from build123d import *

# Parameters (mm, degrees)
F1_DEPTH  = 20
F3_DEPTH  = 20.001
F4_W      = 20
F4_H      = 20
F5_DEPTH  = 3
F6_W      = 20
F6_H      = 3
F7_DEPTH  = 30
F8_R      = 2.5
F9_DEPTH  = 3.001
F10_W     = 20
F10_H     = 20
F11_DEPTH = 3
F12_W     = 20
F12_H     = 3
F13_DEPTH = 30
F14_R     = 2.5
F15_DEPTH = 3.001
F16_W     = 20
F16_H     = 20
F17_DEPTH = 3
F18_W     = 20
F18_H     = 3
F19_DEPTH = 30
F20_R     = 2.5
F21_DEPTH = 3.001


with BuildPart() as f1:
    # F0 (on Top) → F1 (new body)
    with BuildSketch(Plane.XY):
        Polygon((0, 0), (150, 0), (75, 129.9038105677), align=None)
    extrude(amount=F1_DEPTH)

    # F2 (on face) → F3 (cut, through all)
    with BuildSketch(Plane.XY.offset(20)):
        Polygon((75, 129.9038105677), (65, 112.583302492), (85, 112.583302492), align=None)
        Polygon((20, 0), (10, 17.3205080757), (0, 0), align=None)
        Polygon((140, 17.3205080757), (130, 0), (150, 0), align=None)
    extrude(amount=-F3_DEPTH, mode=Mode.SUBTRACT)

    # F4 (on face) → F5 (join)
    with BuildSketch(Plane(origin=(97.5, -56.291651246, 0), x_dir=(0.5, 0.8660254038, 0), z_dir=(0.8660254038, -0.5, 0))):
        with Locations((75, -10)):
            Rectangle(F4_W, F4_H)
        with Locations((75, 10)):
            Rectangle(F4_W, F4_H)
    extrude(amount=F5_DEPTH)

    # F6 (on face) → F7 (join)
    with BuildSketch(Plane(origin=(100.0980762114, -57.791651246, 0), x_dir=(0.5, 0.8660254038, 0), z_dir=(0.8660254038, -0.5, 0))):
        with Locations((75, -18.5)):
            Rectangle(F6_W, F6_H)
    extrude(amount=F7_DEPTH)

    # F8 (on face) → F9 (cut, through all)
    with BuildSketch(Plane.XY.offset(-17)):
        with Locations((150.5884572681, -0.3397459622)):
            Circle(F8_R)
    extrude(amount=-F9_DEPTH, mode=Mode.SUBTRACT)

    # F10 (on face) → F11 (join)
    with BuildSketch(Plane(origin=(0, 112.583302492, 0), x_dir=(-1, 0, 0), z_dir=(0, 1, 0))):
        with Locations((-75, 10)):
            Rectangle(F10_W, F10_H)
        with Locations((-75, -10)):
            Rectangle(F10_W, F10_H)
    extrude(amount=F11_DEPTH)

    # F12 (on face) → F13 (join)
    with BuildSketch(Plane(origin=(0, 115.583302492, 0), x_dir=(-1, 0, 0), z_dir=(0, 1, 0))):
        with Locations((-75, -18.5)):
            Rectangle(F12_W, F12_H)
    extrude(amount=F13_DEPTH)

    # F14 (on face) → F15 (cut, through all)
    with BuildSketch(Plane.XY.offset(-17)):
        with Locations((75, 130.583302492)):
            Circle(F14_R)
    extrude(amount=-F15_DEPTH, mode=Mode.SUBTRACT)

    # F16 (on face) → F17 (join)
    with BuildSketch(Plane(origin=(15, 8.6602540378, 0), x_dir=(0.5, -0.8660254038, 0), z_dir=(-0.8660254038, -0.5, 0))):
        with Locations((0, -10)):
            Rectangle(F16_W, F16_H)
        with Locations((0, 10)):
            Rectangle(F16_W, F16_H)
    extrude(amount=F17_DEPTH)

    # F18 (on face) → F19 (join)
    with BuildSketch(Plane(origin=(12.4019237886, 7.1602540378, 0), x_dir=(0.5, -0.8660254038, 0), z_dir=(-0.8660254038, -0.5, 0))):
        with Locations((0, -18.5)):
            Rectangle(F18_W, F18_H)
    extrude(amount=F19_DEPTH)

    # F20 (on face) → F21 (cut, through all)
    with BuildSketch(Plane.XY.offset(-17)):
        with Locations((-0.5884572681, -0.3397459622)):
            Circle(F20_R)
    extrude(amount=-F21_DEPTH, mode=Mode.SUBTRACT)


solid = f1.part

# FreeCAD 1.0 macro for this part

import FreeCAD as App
import Part
import Sketcher

V = App.Vector
Q = App.Units.Quantity

doc = App.newDocument("Part")
body = doc.addObject("PartDesign::Body", "Body")

# Sketch on XY plane
sketch1 = body.newObject("Sketcher::SketchObject", "Sketch")
sketch1.AttachmentSupport = (doc.getObject("XY_Plane"), [""])
sketch1.MapMode = "FlatFace"
sketch1.addGeometry(Part.LineSegment(V(0, 0, 0), V(150, 0, 0)), False)
sketch1.addGeometry(Part.LineSegment(V(150, 0, 0), V(75, 129.903811, 0)), False)
sketch1.addGeometry(Part.LineSegment(V(75, 129.903811, 0), V(0, 0, 0)), False)
sketch1.addConstraint(Sketcher.Constraint("Coincident", 0, 2, 1, 1))
sketch1.addConstraint(Sketcher.Constraint("Coincident", 1, 2, 2, 1))
sketch1.addConstraint(Sketcher.Constraint("Coincident", 2, 2, 0, 1))
sketch1.addConstraint(Sketcher.Constraint("Horizontal", 0))
sketch1.addConstraint(Sketcher.Constraint("Coincident", 2, 2, -1, 1))
sketch1.addConstraint(Sketcher.Constraint("Equal", 1, 2))
sketch1.addConstraint(Sketcher.Constraint("DistanceX", 0, 1, 0, 2, 150.0))
sketch1.addConstraint(Sketcher.Constraint("Angle", 1, Q("120 deg")))
pad1 = body.newObject("PartDesign::Pad", "Pad")
pad1.Profile = sketch1
pad1.Length = 20

# Sketch on XY plane
sketch2 = body.newObject("Sketcher::SketchObject", "Sketch001")
sketch2.AttachmentSupport = (doc.getObject("XY_Plane"), [""])
sketch2.MapMode = "FlatFace"
sketch2.AttachmentOffset = App.Placement(V(0, 0, 20), App.Rotation())
sketch2.addGeometry(Part.LineSegment(V(75, 129.903811, 0), V(65, 112.583302, 0)), False)
sketch2.addGeometry(Part.LineSegment(V(65, 112.583302, 0), V(85, 112.583302, 0)), False)
sketch2.addGeometry(Part.LineSegment(V(85, 112.583302, 0), V(75, 129.903811, 0)), False)
sketch2.addGeometry(Part.LineSegment(V(20, 0, 0), V(10, 17.320508, 0)), False)
sketch2.addGeometry(Part.LineSegment(V(10, 17.320508, 0), V(0, 0, 0)), False)
sketch2.addGeometry(Part.LineSegment(V(0, 0, 0), V(20, 0, 0)), False)
sketch2.addGeometry(Part.LineSegment(V(140, 17.320508, 0), V(130, 0, 0)), False)
sketch2.addGeometry(Part.LineSegment(V(130, 0, 0), V(150, 0, 0)), False)
sketch2.addGeometry(Part.LineSegment(V(150, 0, 0), V(140, 17.320508, 0)), False)
sketch2.addConstraint(Sketcher.Constraint("Coincident", 0, 2, 1, 1))
sketch2.addConstraint(Sketcher.Constraint("Coincident", 1, 2, 2, 1))
sketch2.addConstraint(Sketcher.Constraint("Coincident", 2, 2, 0, 1))
sketch2.addConstraint(Sketcher.Constraint("Coincident", 3, 2, 4, 1))
sketch2.addConstraint(Sketcher.Constraint("Coincident", 4, 2, 5, 1))
sketch2.addConstraint(Sketcher.Constraint("Coincident", 5, 2, 3, 1))
sketch2.addConstraint(Sketcher.Constraint("Coincident", 6, 2, 7, 1))
sketch2.addConstraint(Sketcher.Constraint("Coincident", 7, 2, 8, 1))
sketch2.addConstraint(Sketcher.Constraint("Coincident", 8, 2, 6, 1))
sketch2.addConstraint(Sketcher.Constraint("Horizontal", 1))
sketch2.addConstraint(Sketcher.Constraint("Horizontal", 5))
sketch2.addConstraint(Sketcher.Constraint("Horizontal", 7))
sketch2.addConstraint(Sketcher.Constraint("Coincident", 4, 2, -1, 1))
sketch2.addConstraint(Sketcher.Constraint("PointOnObject", 6, 2, -1))
sketch2.addConstraint(Sketcher.Constraint("Parallel", 2, 3))
sketch2.addConstraint(Sketcher.Constraint("Parallel", 0, 4))
sketch2.addConstraint(Sketcher.Constraint("Parallel", 4, 6))
sketch2.addConstraint(Sketcher.Constraint("Parallel", 3, 8))
sketch2.addConstraint(Sketcher.Constraint("Horizontal", 3, 2, 8, 2))
sketch2.addConstraint(Sketcher.Constraint("Equal", 1, 5))
sketch2.addConstraint(Sketcher.Constraint("Equal", 0, 2))
sketch2.addConstraint(Sketcher.Constraint("DistanceX", 1, 1, 1, 2, 20.0))
sketch2.addConstraint(Sketcher.Constraint("Angle", 0, Q("-120 deg")))
sketch2.addConstraint(Sketcher.Constraint("DistanceX", -1, 1, 0, 2, 65.0))
sketch2.addConstraint(Sketcher.Constraint("DistanceX", -1, 1, 6, 2, 130.0))
sketch2.addConstraint(Sketcher.Constraint("DistanceY", -1, 1, 2, 2, 129.903811))
pocket1 = body.newObject("PartDesign::Pocket", "Pocket")
pocket1.Profile = sketch2
pocket1.Type = "ThroughAll"

# Sketch on an angled plane
sketch3 = body.newObject("Sketcher::SketchObject", "Sketch002")
sketch3.Placement = App.Placement(V(97.5, -56.291651, 0), App.Rotation(V(0.5, 0.866025404, 0), V(0, 0, 1), V(0.866025404, -0.5, 0), "ZXY"))
sketch3.addGeometry(Part.LineSegment(V(65, -20, 0), V(85, -20, 0)), False)
sketch3.addGeometry(Part.LineSegment(V(85, -20, 0), V(85, 20, 0)), False)
sketch3.addGeometry(Part.LineSegment(V(85, 20, 0), V(65, 20, 0)), False)
sketch3.addGeometry(Part.LineSegment(V(65, 20, 0), V(65, -20, 0)), False)
sketch3.addConstraint(Sketcher.Constraint("Coincident", 0, 2, 1, 1))
sketch3.addConstraint(Sketcher.Constraint("Coincident", 1, 2, 2, 1))
sketch3.addConstraint(Sketcher.Constraint("Coincident", 2, 2, 3, 1))
sketch3.addConstraint(Sketcher.Constraint("Coincident", 3, 2, 0, 1))
sketch3.addConstraint(Sketcher.Constraint("Horizontal", 0))
sketch3.addConstraint(Sketcher.Constraint("Vertical", 1))
sketch3.addConstraint(Sketcher.Constraint("Horizontal", 2))
sketch3.addConstraint(Sketcher.Constraint("Vertical", 3))
sketch3.addConstraint(Sketcher.Constraint("DistanceX", 0, 1, 0, 2, 20.0))
sketch3.addConstraint(Sketcher.Constraint("DistanceY", 1, 1, 1, 2, 40.0))
sketch3.addConstraint(Sketcher.Constraint("DistanceX", -1, 1, 0, 2, 85.0))
sketch3.addConstraint(Sketcher.Constraint("DistanceY", 0, 2, -1, 1, 20.0))
pad2 = body.newObject("PartDesign::Pad", "Pad001")
pad2.Profile = sketch3
pad2.Length = 3

# Sketch on an angled plane
sketch4 = body.newObject("Sketcher::SketchObject", "Sketch003")
sketch4.Placement = App.Placement(V(100.098076, -57.791651, 0), App.Rotation(V(0.5, 0.866025404, 0), V(0, 0, 1), V(0.866025404, -0.5, 0), "ZXY"))
sketch4.addGeometry(Part.LineSegment(V(65, -17, 0), V(65, -20, 0)), False)
sketch4.addGeometry(Part.LineSegment(V(65, -20, 0), V(85, -20, 0)), False)
sketch4.addGeometry(Part.LineSegment(V(85, -20, 0), V(85, -17, 0)), False)
sketch4.addGeometry(Part.LineSegment(V(85, -17, 0), V(65, -17, 0)), False)
sketch4.addConstraint(Sketcher.Constraint("Coincident", 0, 2, 1, 1))
sketch4.addConstraint(Sketcher.Constraint("Coincident", 1, 2, 2, 1))
sketch4.addConstraint(Sketcher.Constraint("Coincident", 2, 2, 3, 1))
sketch4.addConstraint(Sketcher.Constraint("Coincident", 3, 2, 0, 1))
sketch4.addConstraint(Sketcher.Constraint("Vertical", 0))
sketch4.addConstraint(Sketcher.Constraint("Horizontal", 1))
sketch4.addConstraint(Sketcher.Constraint("Vertical", 2))
sketch4.addConstraint(Sketcher.Constraint("Horizontal", 3))
sketch4.addConstraint(Sketcher.Constraint("DistanceX", 1, 1, 1, 2, 20.0))
sketch4.addConstraint(Sketcher.Constraint("DistanceY", 0, 2, 0, 1, 3.0))
sketch4.addConstraint(Sketcher.Constraint("DistanceX", -1, 1, 0, 2, 65.0))
sketch4.addConstraint(Sketcher.Constraint("DistanceY", 0, 2, -1, 1, 20.0))
pad3 = body.newObject("PartDesign::Pad", "Pad002")
pad3.Profile = sketch4
pad3.Length = 30

# Sketch on XY plane
sketch5 = body.newObject("Sketcher::SketchObject", "Sketch004")
sketch5.AttachmentSupport = (doc.getObject("XY_Plane"), [""])
sketch5.MapMode = "FlatFace"
sketch5.AttachmentOffset = App.Placement(V(0, 0, -17), App.Rotation())
sketch5.addGeometry(Part.Circle(V(150.588457, -0.339746, 0), V(0, 0, 1), 2.5), False)
sketch5.addConstraint(Sketcher.Constraint("Diameter", 0, 5.0))
sketch5.addConstraint(Sketcher.Constraint("DistanceX", -1, 1, 0, 3, 150.588457))
sketch5.addConstraint(Sketcher.Constraint("DistanceY", 0, 3, -1, 1, 0.339746))
pocket2 = body.newObject("PartDesign::Pocket", "Pocket001")
pocket2.Profile = sketch5
pocket2.Type = "ThroughAll"

# Sketch on XZ plane
sketch6 = body.newObject("Sketcher::SketchObject", "Sketch005")
sketch6.AttachmentSupport = (doc.getObject("XZ_Plane"), [""])
sketch6.MapMode = "FlatFace"
sketch6.AttachmentOffset = App.Placement(V(0, 0, -112.583302), App.Rotation())
sketch6.addGeometry(Part.LineSegment(V(85, 20, 0), V(85, -20, 0)), False)
sketch6.addGeometry(Part.LineSegment(V(85, -20, 0), V(65, -20, 0)), False)
sketch6.addGeometry(Part.LineSegment(V(65, -20, 0), V(65, 20, 0)), False)
sketch6.addGeometry(Part.LineSegment(V(65, 20, 0), V(85, 20, 0)), False)
sketch6.addConstraint(Sketcher.Constraint("Coincident", 0, 2, 1, 1))
sketch6.addConstraint(Sketcher.Constraint("Coincident", 1, 2, 2, 1))
sketch6.addConstraint(Sketcher.Constraint("Coincident", 2, 2, 3, 1))
sketch6.addConstraint(Sketcher.Constraint("Coincident", 3, 2, 0, 1))
sketch6.addConstraint(Sketcher.Constraint("Vertical", 0))
sketch6.addConstraint(Sketcher.Constraint("Horizontal", 1))
sketch6.addConstraint(Sketcher.Constraint("Vertical", 2))
sketch6.addConstraint(Sketcher.Constraint("Horizontal", 3))
sketch6.addConstraint(Sketcher.Constraint("DistanceX", 1, 2, 1, 1, 20.0))
sketch6.addConstraint(Sketcher.Constraint("DistanceY", 0, 2, 0, 1, 40.0))
sketch6.addConstraint(Sketcher.Constraint("DistanceX", -1, 1, 0, 2, 85.0))
sketch6.addConstraint(Sketcher.Constraint("DistanceY", 0, 2, -1, 1, 20.0))
pad4 = body.newObject("PartDesign::Pad", "Pad003")
pad4.Profile = sketch6
pad4.Length = 3
pad4.Reversed = True

# Sketch on XZ plane
sketch7 = body.newObject("Sketcher::SketchObject", "Sketch006")
sketch7.AttachmentSupport = (doc.getObject("XZ_Plane"), [""])
sketch7.MapMode = "FlatFace"
sketch7.AttachmentOffset = App.Placement(V(0, 0, -115.583302), App.Rotation())
sketch7.addGeometry(Part.LineSegment(V(85, -17, 0), V(85, -20, 0)), False)
sketch7.addGeometry(Part.LineSegment(V(85, -20, 0), V(65, -20, 0)), False)
sketch7.addGeometry(Part.LineSegment(V(65, -20, 0), V(65, -17, 0)), False)
sketch7.addGeometry(Part.LineSegment(V(65, -17, 0), V(85, -17, 0)), False)
sketch7.addConstraint(Sketcher.Constraint("Coincident", 0, 2, 1, 1))
sketch7.addConstraint(Sketcher.Constraint("Coincident", 1, 2, 2, 1))
sketch7.addConstraint(Sketcher.Constraint("Coincident", 2, 2, 3, 1))
sketch7.addConstraint(Sketcher.Constraint("Coincident", 3, 2, 0, 1))
sketch7.addConstraint(Sketcher.Constraint("Vertical", 0))
sketch7.addConstraint(Sketcher.Constraint("Horizontal", 1))
sketch7.addConstraint(Sketcher.Constraint("Vertical", 2))
sketch7.addConstraint(Sketcher.Constraint("Horizontal", 3))
sketch7.addConstraint(Sketcher.Constraint("DistanceX", 1, 2, 1, 1, 20.0))
sketch7.addConstraint(Sketcher.Constraint("DistanceY", 0, 2, 0, 1, 3.0))
sketch7.addConstraint(Sketcher.Constraint("DistanceX", -1, 1, 0, 2, 85.0))
sketch7.addConstraint(Sketcher.Constraint("DistanceY", 0, 2, -1, 1, 20.0))
pad5 = body.newObject("PartDesign::Pad", "Pad004")
pad5.Profile = sketch7
pad5.Length = 30
pad5.Reversed = True

# Sketch on XY plane
sketch8 = body.newObject("Sketcher::SketchObject", "Sketch007")
sketch8.AttachmentSupport = (doc.getObject("XY_Plane"), [""])
sketch8.MapMode = "FlatFace"
sketch8.AttachmentOffset = App.Placement(V(0, 0, -17), App.Rotation())
sketch8.addGeometry(Part.Circle(V(75, 130.583302, 0), V(0, 0, 1), 2.5), False)
sketch8.addConstraint(Sketcher.Constraint("Diameter", 0, 5.0))
sketch8.addConstraint(Sketcher.Constraint("DistanceX", -1, 1, 0, 3, 75.0))
sketch8.addConstraint(Sketcher.Constraint("DistanceY", -1, 1, 0, 3, 130.583302))
pocket3 = body.newObject("PartDesign::Pocket", "Pocket002")
pocket3.Profile = sketch8
pocket3.Type = "ThroughAll"

# Sketch on an angled plane
sketch9 = body.newObject("Sketcher::SketchObject", "Sketch008")
sketch9.Placement = App.Placement(V(15, 8.660254, 0), App.Rotation(V(0.5, -0.866025404, 0), V(0, 0, 1), V(-0.866025404, -0.5, 0), "ZXY"))
sketch9.addGeometry(Part.LineSegment(V(-10, -20, 0), V(10, -20, 0)), False)
sketch9.addGeometry(Part.LineSegment(V(10, -20, 0), V(10, 20, 0)), False)
sketch9.addGeometry(Part.LineSegment(V(10, 20, 0), V(-10, 20, 0)), False)
sketch9.addGeometry(Part.LineSegment(V(-10, 20, 0), V(-10, -20, 0)), False)
sketch9.addConstraint(Sketcher.Constraint("Coincident", 0, 2, 1, 1))
sketch9.addConstraint(Sketcher.Constraint("Coincident", 1, 2, 2, 1))
sketch9.addConstraint(Sketcher.Constraint("Coincident", 2, 2, 3, 1))
sketch9.addConstraint(Sketcher.Constraint("Coincident", 3, 2, 0, 1))
sketch9.addConstraint(Sketcher.Constraint("Horizontal", 0))
sketch9.addConstraint(Sketcher.Constraint("Vertical", 1))
sketch9.addConstraint(Sketcher.Constraint("Horizontal", 2))
sketch9.addConstraint(Sketcher.Constraint("Vertical", 3))
sketch9.addConstraint(Sketcher.Constraint("Symmetric", 0, 2, 2, 2, -1, 1))
sketch9.addConstraint(Sketcher.Constraint("DistanceX", 0, 1, 0, 2, 20.0))
sketch9.addConstraint(Sketcher.Constraint("DistanceY", 1, 1, 1, 2, 40.0))
pad6 = body.newObject("PartDesign::Pad", "Pad005")
pad6.Profile = sketch9
pad6.Length = 3

# Sketch on an angled plane
sketch10 = body.newObject("Sketcher::SketchObject", "Sketch009")
sketch10.Placement = App.Placement(V(12.401924, 7.160254, 0), App.Rotation(V(0.5, -0.866025404, 0), V(0, 0, 1), V(-0.866025404, -0.5, 0), "ZXY"))
sketch10.addGeometry(Part.LineSegment(V(-10, -17, 0), V(-10, -20, 0)), False)
sketch10.addGeometry(Part.LineSegment(V(-10, -20, 0), V(10, -20, 0)), False)
sketch10.addGeometry(Part.LineSegment(V(10, -20, 0), V(10, -17, 0)), False)
sketch10.addGeometry(Part.LineSegment(V(10, -17, 0), V(-10, -17, 0)), False)
sketch10.addConstraint(Sketcher.Constraint("Coincident", 0, 2, 1, 1))
sketch10.addConstraint(Sketcher.Constraint("Coincident", 1, 2, 2, 1))
sketch10.addConstraint(Sketcher.Constraint("Coincident", 2, 2, 3, 1))
sketch10.addConstraint(Sketcher.Constraint("Coincident", 3, 2, 0, 1))
sketch10.addConstraint(Sketcher.Constraint("Vertical", 0))
sketch10.addConstraint(Sketcher.Constraint("Horizontal", 1))
sketch10.addConstraint(Sketcher.Constraint("Vertical", 2))
sketch10.addConstraint(Sketcher.Constraint("Horizontal", 3))
sketch10.addConstraint(Sketcher.Constraint("DistanceX", 1, 1, 1, 2, 20.0))
sketch10.addConstraint(Sketcher.Constraint("DistanceY", 0, 2, 0, 1, 3.0))
sketch10.addConstraint(Sketcher.Constraint("DistanceX", 0, 2, -1, 1, 10.0))
sketch10.addConstraint(Sketcher.Constraint("DistanceY", 0, 2, -1, 1, 20.0))
pad7 = body.newObject("PartDesign::Pad", "Pad006")
pad7.Profile = sketch10
pad7.Length = 30

# Sketch on XY plane
sketch11 = body.newObject("Sketcher::SketchObject", "Sketch010")
sketch11.AttachmentSupport = (doc.getObject("XY_Plane"), [""])
sketch11.MapMode = "FlatFace"
sketch11.AttachmentOffset = App.Placement(V(0, 0, -17), App.Rotation())
sketch11.addGeometry(Part.Circle(V(-0.588457, -0.339746, 0), V(0, 0, 1), 2.5), False)
sketch11.addConstraint(Sketcher.Constraint("Diameter", 0, 5.0))
sketch11.addConstraint(Sketcher.Constraint("DistanceX", 0, 3, -1, 1, 0.588457))
sketch11.addConstraint(Sketcher.Constraint("DistanceY", 0, 3, -1, 1, 0.339746))
pocket4 = body.newObject("PartDesign::Pocket", "Pocket003")
pocket4.Profile = sketch11
pocket4.Type = "ThroughAll"

doc.recompute()
